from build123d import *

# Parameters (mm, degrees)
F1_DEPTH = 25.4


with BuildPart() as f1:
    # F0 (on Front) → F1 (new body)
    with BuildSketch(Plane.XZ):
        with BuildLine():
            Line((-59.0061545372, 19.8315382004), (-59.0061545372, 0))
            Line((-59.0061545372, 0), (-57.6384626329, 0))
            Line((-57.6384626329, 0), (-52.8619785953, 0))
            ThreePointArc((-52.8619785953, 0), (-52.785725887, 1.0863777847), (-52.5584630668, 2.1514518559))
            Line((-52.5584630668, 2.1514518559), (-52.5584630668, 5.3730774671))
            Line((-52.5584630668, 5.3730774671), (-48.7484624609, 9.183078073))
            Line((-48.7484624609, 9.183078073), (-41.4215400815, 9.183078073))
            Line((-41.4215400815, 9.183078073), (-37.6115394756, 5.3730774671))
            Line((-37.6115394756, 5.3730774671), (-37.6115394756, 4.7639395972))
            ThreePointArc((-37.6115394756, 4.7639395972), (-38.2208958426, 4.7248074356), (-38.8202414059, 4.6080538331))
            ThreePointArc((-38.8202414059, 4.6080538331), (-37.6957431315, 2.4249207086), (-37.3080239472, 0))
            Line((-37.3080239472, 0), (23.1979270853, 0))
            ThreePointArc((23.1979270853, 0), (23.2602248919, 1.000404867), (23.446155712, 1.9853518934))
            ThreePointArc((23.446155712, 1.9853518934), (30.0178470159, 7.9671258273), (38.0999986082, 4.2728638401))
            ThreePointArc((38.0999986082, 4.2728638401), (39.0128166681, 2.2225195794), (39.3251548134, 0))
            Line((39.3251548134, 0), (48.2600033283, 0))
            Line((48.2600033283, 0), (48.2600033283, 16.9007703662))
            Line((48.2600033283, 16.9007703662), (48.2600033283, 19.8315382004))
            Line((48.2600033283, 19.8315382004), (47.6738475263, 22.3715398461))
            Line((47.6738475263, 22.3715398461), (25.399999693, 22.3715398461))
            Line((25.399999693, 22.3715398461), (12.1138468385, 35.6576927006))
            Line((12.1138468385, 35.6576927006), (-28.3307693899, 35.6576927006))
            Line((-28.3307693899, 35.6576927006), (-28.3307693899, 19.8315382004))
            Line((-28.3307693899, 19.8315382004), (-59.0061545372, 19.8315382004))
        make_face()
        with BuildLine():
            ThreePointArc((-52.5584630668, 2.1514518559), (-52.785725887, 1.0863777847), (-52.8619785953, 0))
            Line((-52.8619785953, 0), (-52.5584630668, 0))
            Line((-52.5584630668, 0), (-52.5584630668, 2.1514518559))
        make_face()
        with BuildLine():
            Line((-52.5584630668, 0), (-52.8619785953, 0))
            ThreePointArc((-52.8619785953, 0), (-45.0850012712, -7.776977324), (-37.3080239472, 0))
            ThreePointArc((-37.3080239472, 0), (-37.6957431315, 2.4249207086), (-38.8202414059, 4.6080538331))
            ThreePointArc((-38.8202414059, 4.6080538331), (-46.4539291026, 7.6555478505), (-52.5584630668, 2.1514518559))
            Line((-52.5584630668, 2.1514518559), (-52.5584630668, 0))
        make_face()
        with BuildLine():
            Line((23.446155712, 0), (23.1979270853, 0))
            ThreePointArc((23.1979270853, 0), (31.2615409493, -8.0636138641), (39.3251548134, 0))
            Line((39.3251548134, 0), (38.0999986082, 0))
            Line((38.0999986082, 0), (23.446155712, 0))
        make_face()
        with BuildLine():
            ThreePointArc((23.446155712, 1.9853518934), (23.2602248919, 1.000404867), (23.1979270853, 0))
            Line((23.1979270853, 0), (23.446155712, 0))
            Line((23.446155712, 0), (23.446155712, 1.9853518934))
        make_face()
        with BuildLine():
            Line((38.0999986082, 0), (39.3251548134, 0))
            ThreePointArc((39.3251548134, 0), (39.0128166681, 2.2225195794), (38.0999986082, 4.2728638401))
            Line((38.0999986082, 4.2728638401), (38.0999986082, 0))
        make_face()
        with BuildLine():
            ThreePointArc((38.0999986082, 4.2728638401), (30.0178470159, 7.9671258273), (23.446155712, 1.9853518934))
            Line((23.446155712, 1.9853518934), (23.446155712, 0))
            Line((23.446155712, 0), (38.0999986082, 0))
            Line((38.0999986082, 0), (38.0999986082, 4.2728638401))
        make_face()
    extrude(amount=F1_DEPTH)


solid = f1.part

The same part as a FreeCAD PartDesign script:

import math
import FreeCAD as App
import Part
import Sketcher

V = App.Vector
Q = App.Units.Quantity

doc = App.newDocument("Part")
body = doc.addObject("PartDesign::Body", "Body")

# Sketch on XZ plane
sketch1 = doc.addObject("Sketcher::SketchObject", "Sketch")
body.addObject(sketch1)
sketch1.AttachmentSupport = (doc.XZ_Plane, [""])
sketch1.MapMode = "FlatFace"
sketch1.addGeometry([
    Part.ArcOfCircle(Part.Circle(V(31.3, 0, 0), V(0, 0, 1), 8.1), math.radians(180), math.radians(360)),  # 0
    Part.LineSegment(V(39.3, 0, 0), V(48.3, 0, 0)),  # 1
    Part.LineSegment(V(48.3, 0, 0), V(48.3, 19.8, 0)),  # 2
    Part.LineSegment(V(48.3, 19.8, 0), V(47.7, 22.4, 0)),  # 3
    Part.LineSegment(V(47.7, 22.4, 0), V(25.4, 22.4, 0)),  # 4
    Part.LineSegment(V(25.4, 22.4, 0), V(12.1, 35.7, 0)),  # 5
    Part.LineSegment(V(12.1, 35.7, 0), V(-28.3, 35.7, 0)),  # 6
    Part.LineSegment(V(-28.3, 35.7, 0), V(-28.3, 19.8, 0)),  # 7
    Part.LineSegment(V(-28.3, 19.8, 0), V(-59, 19.8, 0)),  # 8
    Part.LineSegment(V(-59, 19.8, 0), V(-59, 0, 0)),  # 9
    Part.LineSegment(V(-59, 0, 0), V(-52.9, 0, 0)),  # 10
    Part.ArcOfCircle(Part.Circle(V(-45.1, 0, 0), V(0, 0, 1), 7.8), math.radians(180), math.radians(360)),  # 11
    Part.LineSegment(V(-37.3, 0, 0), V(23.2, 0, 0)),  # 12
    Part.LineSegment(V(-52.6, 2.2, 0), V(-52.6, 5.4, 0)),  # 13
    Part.LineSegment(V(-52.6, 5.4, 0), V(-48.7, 9.2, 0)),  # 14
    Part.LineSegment(V(-48.7, 9.2, 0), V(-41.4, 9.2, 0)),  # 15
    Part.LineSegment(V(-41.4, 9.2, 0), V(-37.6, 5.4, 0)),  # 16
    Part.LineSegment(V(-37.6, 5.4, 0), V(-37.6, 4.8, 0)),  # 17
    Part.ArcOfCircle(Part.Circle(V(-37.6, 0, 0), V(0, 0, 1), 4.8), math.radians(90), math.radians(104.7)),  # 18
    Part.ArcOfCircle(Part.Circle(V(-45.1, 0, 0), V(0, 0, 1), 7.8), math.radians(36), math.radians(164)),  # 19
], False)
sketch1.addConstraint([
    Sketcher.Constraint("Coincident", 0, 2, 1, 1),
    Sketcher.Constraint("Coincident", 1, 2, 2, 1),
    Sketcher.Constraint("Coincident", 2, 2, 3, 1),
    Sketcher.Constraint("Coincident", 3, 2, 4, 1),
    Sketcher.Constraint("Coincident", 4, 2, 5, 1),
    Sketcher.Constraint("Coincident", 5, 2, 6, 1),
    Sketcher.Constraint("Coincident", 6, 2, 7, 1),
    Sketcher.Constraint("Coincident", 7, 2, 8, 1),
    Sketcher.Constraint("Coincident", 8, 2, 9, 1),
    Sketcher.Constraint("Coincident", 9, 2, 10, 1),
    Sketcher.Constraint("Coincident", 10, 2, 11, 1),
    Sketcher.Constraint("Coincident", 11, 2, 12, 1),
    Sketcher.Constraint("Coincident", 12, 2, 0, 1),
    Sketcher.Constraint("Coincident", 13, 2, 14, 1),
    Sketcher.Constraint("Coincident", 14, 2, 15, 1),
    Sketcher.Constraint("Coincident", 15, 2, 16, 1),
    Sketcher.Constraint("Coincident", 16, 2, 17, 1),
    Sketcher.Constraint("Coincident", 17, 2, 18, 1),
    Sketcher.Constraint("Coincident", 18, 2, 19, 1),
    Sketcher.Constraint("Coincident", 19, 2, 13, 1),
    Sketcher.Constraint("Horizontal", 1),
    Sketcher.Constraint("Vertical", 2),
    Sketcher.Constraint("Horizontal", 4),
    Sketcher.Constraint("Horizontal", 6),
    Sketcher.Constraint("Vertical", 7),
    Sketcher.Constraint("Horizontal", 8),
    Sketcher.Constraint("Vertical", 9),
    Sketcher.Constraint("Horizontal", 10),
    Sketcher.Constraint("Horizontal", 12),
    Sketcher.Constraint("Vertical", 13),
    Sketcher.Constraint("Horizontal", 15),
    Sketcher.Constraint("Vertical", 17),
    Sketcher.Constraint("Coincident", 19, 3, 11, 3),
    Sketcher.Constraint("Equal", 11, 19),
    Sketcher.Constraint("PointOnObject", 0, 3, -1),
    Sketcher.Constraint("PointOnObject", 11, 3, -1),
    Sketcher.Constraint("PointOnObject", 18, 3, -1),
    Sketcher.Constraint("PointOnObject", 0, 2, -1),
    Sketcher.Constraint("PointOnObject", 9, 2, -1),
    Sketcher.Constraint("PointOnObject", 11, 2, -1),
    Sketcher.Constraint("Perpendicular", 5, 14),
    Sketcher.Constraint("Perpendicular", 14, 16),
    Sketcher.Constraint("Horizontal", 2, 2, 7, 2),
    Sketcher.Constraint("Horizontal", 13, 2, 16, 2),
    Sketcher.Constraint("Vertical", 18, 3, 16, 2),
    Sketcher.Constraint("Equal", 14, 16),
    Sketcher.Constraint("DistanceX", -1, 1, 4, 2, Q("1 in")),
    Sketcher.Constraint("DistanceX", -1, 1, 1, 2, Q("1.9000001 in")),
    Sketcher.Constraint("DistanceY", 2, 2, 3, 2, Q("0.1000001 in")),
    Sketcher.Constraint("DistanceX", 5, 2, 3, 2, Q("1.4 in")),
    Sketcher.Constraint("DistanceX", 13, 2, 14, 2, Q("0.15 in")),
    Sketcher.Constraint("DistanceX", 11, 3, -1, 1, Q("1.7750001 in")),
    Sketcher.Constraint("Radius", 18, Q("4.76394 mm")),
    Sketcher.Constraint("Radius", 0, Q("8.063614 mm")),
    Sketcher.Constraint("Radius", 11, Q("7.776977 mm")),
    Sketcher.Constraint("DistanceX", 1, 1, 1, 2, Q("8.934849 mm")),
    Sketcher.Constraint("DistanceY", 2, 1, 2, 2, Q("19.831538 mm")),
    Sketcher.Constraint("DistanceX", 18, 2, 17, 2, Q("1.208702 mm")),
    Sketcher.Constraint("DistanceX", 4, 2, 4, 1, Q("22.273848 mm")),
    Sketcher.Constraint("DistanceX", 6, 2, 6, 1, Q("40.444616 mm")),
    Sketcher.Constraint("DistanceX", 8, 2, 8, 1, Q("30.675385 mm")),
    Sketcher.Constraint("DistanceX", 15, 1, 15, 2, Q("7.326922 mm")),
    Sketcher.Constraint("DistanceY", 13, 1, 13, 2, Q("3.221626 mm")),
])
pad1 = doc.addObject("PartDesign::Pad", "Pad")
body.addObject(pad1)
pad1.Profile = sketch1
pad1.Length = Q("1 in")

doc.recompute()
